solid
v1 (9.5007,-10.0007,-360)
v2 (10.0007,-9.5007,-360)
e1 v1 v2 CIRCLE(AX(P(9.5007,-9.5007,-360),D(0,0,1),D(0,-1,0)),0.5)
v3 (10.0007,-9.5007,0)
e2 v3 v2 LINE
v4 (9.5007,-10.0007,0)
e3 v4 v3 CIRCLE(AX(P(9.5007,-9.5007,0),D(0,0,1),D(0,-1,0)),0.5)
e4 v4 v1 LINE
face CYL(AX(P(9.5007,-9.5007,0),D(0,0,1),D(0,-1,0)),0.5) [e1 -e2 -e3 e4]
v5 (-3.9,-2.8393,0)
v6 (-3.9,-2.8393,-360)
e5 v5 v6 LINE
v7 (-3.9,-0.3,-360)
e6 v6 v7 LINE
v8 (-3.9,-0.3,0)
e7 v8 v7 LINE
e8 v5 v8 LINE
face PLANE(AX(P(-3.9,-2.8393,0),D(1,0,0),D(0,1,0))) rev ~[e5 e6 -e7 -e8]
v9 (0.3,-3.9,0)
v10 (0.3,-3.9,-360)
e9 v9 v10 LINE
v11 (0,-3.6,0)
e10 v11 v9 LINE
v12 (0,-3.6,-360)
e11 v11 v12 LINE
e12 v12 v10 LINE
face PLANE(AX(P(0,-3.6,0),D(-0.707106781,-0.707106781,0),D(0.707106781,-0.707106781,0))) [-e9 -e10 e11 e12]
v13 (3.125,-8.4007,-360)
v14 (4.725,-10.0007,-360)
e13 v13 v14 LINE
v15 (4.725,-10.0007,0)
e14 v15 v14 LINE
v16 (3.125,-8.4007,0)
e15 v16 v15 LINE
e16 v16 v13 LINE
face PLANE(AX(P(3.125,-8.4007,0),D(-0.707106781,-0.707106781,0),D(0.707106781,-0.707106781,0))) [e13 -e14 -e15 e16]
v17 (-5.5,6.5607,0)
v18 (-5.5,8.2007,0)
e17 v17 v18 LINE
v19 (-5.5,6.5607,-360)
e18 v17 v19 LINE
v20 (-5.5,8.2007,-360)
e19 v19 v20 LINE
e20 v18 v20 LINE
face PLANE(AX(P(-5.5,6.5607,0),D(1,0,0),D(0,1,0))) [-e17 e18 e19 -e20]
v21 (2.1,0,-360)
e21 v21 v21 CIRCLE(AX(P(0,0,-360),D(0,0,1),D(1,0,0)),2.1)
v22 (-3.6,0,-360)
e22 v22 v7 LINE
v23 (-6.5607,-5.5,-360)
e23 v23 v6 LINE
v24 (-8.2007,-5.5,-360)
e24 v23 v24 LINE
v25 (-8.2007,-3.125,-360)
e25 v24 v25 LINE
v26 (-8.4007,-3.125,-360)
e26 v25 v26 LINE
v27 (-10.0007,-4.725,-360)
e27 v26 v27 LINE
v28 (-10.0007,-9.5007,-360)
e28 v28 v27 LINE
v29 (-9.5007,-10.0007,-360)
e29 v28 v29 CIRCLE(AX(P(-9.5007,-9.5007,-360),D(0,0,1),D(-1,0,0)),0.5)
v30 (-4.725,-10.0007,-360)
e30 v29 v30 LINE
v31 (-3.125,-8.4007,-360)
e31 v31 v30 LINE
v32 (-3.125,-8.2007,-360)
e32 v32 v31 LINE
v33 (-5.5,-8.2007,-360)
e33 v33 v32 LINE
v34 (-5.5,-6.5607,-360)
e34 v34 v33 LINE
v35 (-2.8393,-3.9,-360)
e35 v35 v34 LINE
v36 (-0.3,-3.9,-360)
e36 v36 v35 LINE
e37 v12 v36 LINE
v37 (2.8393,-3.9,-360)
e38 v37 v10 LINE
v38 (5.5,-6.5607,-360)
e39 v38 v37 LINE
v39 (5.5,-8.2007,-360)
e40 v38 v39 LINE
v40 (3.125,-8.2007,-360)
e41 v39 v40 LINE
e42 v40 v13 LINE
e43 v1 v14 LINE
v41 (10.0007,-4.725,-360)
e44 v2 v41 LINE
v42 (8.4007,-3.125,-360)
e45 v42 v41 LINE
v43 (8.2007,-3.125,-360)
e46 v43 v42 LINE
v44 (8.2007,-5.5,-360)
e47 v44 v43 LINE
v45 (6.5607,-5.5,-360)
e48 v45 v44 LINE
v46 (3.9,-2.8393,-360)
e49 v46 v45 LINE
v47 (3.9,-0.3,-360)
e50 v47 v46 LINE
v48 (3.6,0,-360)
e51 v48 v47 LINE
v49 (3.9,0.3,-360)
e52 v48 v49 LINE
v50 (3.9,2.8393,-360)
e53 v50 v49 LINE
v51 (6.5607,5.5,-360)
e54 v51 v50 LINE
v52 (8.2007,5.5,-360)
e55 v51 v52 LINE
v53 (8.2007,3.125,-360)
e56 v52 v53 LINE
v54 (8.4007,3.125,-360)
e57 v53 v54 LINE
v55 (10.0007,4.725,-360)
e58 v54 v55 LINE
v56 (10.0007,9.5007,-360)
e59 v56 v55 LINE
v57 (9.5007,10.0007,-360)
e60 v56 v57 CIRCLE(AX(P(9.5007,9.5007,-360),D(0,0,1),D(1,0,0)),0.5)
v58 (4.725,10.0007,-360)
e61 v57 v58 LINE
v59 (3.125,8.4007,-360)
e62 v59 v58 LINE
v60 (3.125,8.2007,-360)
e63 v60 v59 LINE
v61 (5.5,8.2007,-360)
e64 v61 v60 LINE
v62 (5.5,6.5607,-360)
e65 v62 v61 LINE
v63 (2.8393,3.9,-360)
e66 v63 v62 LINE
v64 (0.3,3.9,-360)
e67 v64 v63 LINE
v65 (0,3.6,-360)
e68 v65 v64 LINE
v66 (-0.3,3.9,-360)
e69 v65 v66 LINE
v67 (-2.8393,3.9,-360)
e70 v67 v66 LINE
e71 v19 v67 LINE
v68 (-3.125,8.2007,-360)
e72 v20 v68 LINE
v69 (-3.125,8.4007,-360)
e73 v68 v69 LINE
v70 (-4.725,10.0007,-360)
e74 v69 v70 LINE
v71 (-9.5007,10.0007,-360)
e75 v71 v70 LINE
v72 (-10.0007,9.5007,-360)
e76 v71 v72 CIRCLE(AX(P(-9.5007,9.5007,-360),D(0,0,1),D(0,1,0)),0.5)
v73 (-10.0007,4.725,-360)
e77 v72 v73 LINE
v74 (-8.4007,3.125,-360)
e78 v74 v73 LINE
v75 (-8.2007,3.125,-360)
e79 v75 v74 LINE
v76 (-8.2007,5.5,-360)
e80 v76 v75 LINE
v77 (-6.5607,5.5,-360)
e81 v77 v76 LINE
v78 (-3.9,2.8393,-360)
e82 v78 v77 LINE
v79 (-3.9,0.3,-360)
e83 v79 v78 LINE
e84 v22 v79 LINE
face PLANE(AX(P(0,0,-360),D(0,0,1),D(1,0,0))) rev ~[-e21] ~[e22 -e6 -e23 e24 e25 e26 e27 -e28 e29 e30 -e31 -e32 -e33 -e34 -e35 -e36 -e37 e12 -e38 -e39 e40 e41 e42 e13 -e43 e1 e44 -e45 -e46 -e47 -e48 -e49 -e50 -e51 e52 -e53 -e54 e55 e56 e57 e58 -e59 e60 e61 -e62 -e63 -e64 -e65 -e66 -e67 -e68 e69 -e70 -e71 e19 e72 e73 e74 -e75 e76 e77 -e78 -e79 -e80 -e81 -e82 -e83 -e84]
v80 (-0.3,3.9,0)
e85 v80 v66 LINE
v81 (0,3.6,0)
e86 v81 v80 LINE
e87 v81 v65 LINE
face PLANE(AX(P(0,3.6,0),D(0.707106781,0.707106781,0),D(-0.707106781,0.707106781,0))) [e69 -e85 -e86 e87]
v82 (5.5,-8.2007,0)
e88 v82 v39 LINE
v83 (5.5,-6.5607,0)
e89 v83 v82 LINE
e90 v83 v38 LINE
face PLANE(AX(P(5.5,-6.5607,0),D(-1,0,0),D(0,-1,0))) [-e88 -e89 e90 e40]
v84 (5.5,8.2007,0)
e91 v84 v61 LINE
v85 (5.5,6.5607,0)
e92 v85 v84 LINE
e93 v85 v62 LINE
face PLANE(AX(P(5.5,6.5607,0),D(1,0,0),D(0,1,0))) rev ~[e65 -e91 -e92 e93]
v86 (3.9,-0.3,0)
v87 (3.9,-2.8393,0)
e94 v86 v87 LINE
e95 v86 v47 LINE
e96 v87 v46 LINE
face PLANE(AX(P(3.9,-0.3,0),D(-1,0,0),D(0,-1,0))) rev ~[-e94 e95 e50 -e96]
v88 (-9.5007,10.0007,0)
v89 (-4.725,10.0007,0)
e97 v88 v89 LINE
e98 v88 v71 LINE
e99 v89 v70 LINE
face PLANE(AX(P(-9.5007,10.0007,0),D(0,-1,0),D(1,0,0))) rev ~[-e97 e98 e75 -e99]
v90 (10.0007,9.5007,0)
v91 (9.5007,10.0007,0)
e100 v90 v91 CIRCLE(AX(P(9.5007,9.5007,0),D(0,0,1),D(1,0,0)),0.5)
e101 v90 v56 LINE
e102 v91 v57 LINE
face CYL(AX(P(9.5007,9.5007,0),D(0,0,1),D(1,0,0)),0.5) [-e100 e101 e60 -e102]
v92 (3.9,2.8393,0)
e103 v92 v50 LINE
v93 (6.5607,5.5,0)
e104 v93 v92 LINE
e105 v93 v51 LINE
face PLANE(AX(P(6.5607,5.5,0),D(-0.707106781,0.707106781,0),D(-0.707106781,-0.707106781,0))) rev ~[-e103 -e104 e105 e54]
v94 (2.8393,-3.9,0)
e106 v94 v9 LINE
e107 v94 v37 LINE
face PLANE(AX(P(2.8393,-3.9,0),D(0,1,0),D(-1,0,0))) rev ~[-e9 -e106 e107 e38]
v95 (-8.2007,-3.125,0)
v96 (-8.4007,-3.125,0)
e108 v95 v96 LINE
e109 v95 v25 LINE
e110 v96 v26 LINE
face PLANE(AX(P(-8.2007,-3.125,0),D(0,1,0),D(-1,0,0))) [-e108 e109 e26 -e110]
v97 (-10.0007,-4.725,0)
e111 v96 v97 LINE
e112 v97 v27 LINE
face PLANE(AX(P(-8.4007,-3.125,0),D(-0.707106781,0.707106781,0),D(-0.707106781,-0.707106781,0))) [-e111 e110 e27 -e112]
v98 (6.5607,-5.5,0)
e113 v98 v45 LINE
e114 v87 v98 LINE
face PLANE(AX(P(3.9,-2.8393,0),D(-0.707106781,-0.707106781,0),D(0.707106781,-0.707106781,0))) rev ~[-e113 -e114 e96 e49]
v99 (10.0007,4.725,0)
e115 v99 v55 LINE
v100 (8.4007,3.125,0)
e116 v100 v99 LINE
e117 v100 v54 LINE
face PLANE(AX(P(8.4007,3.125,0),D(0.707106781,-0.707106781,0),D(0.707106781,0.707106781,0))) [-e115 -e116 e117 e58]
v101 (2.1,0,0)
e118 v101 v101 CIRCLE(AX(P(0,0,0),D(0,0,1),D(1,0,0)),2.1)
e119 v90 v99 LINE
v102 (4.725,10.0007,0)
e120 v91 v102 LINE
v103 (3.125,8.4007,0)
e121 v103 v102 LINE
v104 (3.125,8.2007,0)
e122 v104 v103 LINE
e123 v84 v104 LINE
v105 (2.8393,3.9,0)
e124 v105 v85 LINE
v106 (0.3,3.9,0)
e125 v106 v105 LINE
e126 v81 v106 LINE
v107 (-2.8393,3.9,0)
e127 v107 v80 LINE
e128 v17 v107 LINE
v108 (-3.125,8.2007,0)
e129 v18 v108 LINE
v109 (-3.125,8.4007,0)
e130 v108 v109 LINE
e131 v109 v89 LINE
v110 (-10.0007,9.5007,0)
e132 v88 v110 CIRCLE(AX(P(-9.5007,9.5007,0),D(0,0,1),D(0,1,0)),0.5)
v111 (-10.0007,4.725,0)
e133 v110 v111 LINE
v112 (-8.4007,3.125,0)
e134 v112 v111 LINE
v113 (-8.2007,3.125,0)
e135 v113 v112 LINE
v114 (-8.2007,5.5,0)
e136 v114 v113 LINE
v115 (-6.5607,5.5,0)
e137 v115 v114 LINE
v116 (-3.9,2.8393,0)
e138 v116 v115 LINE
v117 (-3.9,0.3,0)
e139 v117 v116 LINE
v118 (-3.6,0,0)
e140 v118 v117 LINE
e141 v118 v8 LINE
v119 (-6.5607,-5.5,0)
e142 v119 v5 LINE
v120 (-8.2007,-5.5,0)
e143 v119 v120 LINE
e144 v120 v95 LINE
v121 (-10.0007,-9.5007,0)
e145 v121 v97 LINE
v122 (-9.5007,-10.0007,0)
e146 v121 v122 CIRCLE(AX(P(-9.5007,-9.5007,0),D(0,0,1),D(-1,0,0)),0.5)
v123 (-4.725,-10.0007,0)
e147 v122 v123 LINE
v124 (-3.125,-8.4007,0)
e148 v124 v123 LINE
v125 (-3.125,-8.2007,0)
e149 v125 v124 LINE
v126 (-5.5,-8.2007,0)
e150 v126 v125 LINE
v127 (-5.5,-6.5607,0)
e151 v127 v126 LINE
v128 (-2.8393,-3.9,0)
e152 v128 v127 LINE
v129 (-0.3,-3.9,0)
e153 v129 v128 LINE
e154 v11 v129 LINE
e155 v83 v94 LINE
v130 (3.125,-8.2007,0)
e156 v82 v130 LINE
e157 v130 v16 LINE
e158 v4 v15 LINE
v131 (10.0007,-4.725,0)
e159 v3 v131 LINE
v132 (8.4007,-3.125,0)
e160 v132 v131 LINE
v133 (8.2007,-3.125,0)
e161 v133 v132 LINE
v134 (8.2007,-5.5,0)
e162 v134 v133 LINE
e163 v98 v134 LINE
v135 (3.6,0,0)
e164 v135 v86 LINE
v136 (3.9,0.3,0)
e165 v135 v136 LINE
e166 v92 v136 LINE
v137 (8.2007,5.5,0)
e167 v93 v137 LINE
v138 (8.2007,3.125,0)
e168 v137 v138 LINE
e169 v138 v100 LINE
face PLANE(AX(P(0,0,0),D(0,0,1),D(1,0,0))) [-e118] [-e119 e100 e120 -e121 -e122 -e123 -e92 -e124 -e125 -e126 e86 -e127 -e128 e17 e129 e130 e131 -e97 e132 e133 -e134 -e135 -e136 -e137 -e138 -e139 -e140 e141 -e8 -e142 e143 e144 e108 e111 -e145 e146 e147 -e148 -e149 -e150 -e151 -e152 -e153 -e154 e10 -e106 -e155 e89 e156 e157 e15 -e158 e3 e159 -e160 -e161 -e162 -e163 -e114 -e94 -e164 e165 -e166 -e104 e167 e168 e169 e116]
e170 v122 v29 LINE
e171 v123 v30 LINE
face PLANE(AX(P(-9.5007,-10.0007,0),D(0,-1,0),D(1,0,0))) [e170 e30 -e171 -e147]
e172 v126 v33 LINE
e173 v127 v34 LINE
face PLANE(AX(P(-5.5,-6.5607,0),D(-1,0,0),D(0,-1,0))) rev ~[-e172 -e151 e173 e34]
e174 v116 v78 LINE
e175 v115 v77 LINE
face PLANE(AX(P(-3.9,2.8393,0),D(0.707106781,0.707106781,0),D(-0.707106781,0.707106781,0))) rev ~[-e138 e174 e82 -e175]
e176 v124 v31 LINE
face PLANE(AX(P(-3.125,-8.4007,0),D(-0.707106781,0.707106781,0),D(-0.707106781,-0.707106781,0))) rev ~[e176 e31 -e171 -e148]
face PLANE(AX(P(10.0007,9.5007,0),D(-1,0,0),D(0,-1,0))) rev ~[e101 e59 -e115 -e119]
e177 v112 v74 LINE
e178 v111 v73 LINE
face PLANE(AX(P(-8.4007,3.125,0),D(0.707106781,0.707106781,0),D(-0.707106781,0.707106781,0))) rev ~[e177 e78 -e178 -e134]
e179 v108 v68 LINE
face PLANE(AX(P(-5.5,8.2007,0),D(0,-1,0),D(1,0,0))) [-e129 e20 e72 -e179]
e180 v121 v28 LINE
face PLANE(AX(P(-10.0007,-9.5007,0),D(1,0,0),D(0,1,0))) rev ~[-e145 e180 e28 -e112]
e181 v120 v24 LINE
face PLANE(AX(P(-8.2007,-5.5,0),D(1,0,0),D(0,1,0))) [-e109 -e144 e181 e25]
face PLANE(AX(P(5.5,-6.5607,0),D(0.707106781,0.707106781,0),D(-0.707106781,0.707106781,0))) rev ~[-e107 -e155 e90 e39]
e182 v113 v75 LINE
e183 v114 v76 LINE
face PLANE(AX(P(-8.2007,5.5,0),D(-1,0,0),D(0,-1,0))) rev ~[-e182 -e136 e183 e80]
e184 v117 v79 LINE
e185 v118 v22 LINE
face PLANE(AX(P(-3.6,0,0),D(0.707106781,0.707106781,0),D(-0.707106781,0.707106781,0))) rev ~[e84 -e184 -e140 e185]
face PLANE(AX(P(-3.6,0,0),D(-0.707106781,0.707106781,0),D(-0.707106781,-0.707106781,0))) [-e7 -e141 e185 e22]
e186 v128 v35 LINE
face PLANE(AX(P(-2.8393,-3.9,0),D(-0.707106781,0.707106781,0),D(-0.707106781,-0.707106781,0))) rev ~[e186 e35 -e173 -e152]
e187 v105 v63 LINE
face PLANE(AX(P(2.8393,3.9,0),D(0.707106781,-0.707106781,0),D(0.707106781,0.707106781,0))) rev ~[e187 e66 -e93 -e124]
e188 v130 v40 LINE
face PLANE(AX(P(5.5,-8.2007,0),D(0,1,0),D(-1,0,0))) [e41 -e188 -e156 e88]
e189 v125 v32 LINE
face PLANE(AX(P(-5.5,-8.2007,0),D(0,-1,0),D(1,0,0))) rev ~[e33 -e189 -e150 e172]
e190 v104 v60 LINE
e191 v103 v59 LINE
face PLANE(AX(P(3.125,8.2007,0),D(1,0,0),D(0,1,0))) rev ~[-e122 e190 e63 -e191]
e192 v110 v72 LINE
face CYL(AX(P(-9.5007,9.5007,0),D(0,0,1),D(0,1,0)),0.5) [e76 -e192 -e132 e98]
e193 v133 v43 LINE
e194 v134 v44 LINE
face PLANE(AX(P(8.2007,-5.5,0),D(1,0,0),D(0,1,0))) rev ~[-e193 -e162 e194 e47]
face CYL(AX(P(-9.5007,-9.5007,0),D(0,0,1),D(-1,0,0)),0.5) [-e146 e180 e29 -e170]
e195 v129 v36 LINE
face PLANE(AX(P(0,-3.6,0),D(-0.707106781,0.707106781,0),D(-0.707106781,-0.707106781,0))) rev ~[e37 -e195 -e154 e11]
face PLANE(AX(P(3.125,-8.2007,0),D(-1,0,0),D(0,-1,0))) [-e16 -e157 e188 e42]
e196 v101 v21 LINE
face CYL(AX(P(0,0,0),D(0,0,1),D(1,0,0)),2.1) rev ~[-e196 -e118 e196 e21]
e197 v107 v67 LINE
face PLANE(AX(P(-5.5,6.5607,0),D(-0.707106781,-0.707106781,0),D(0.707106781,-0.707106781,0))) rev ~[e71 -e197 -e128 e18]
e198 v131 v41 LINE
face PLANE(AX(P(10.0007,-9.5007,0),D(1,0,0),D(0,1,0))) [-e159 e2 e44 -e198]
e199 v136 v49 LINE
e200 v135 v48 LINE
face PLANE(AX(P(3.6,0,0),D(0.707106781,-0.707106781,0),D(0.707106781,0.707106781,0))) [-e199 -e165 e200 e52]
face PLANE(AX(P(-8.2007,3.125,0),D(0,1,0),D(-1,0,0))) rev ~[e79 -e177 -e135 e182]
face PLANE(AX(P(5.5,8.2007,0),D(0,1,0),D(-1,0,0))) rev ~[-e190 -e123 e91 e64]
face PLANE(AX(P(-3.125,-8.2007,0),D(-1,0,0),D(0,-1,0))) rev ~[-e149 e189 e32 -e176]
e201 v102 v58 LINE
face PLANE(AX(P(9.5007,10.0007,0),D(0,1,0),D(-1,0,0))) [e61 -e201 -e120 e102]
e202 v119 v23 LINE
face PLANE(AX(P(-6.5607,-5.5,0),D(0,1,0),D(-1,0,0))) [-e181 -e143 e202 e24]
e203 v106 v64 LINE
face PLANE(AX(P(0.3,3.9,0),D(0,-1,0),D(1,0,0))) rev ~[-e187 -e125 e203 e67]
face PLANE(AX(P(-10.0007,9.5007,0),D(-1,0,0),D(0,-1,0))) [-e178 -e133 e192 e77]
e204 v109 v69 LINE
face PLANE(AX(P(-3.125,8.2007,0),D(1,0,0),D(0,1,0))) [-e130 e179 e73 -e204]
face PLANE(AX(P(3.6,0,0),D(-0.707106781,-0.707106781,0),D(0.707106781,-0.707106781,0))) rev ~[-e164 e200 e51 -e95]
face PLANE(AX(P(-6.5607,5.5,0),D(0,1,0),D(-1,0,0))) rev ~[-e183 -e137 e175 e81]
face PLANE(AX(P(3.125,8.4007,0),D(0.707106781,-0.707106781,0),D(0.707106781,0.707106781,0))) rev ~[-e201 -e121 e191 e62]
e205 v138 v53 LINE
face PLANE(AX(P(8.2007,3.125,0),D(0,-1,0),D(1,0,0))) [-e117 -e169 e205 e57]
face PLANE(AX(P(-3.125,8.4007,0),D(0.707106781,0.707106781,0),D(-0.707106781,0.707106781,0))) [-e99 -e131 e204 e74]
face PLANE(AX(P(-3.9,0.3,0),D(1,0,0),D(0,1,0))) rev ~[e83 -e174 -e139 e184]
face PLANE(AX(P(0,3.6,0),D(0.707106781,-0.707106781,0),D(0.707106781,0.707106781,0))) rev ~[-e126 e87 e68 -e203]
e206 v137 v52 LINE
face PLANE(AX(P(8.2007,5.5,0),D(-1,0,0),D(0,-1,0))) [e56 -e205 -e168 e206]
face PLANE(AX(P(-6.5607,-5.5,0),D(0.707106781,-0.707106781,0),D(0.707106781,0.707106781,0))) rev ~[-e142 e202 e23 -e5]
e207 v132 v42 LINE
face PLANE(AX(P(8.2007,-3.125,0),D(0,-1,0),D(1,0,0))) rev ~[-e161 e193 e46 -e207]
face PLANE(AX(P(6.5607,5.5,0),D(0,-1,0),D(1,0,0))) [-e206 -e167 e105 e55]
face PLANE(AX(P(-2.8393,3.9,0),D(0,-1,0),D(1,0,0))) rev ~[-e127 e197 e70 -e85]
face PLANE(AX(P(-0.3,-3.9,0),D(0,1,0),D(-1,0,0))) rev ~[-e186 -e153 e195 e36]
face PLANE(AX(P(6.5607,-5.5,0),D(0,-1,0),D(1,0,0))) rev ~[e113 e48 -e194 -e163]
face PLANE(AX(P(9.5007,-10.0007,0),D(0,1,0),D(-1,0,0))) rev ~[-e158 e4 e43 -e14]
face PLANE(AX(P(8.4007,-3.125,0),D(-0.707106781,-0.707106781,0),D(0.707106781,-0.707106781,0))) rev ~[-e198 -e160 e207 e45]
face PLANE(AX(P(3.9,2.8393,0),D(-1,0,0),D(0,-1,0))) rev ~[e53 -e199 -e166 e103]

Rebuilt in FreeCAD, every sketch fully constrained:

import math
import FreeCAD as App
import Part
import Sketcher

doc = App.newDocument("Part")
body = doc.addObject("PartDesign::Body", "Body")

sketch1 = body.newObject("Sketcher::SketchObject", "Sketch")
sketch1.AttachmentSupport = (doc.getObject("XY_Plane"), [""])
sketch1.MapMode = "FlatFace"
sketch1.addGeometry(Part.LineSegment(App.Vector(3.9, -2.84, 0), App.Vector(3.9, -0.3, 0)), False)
sketch1.addGeometry(Part.LineSegment(App.Vector(3.9, -0.3, 0), App.Vector(3.6, 0, 0)), False)
sketch1.addGeometry(Part.LineSegment(App.Vector(3.6, 0, 0), App.Vector(3.9, 0.3, 0)), False)
sketch1.addGeometry(Part.LineSegment(App.Vector(3.9, 0.3, 0), App.Vector(3.9, 2.84, 0)), False)
sketch1.addGeometry(Part.LineSegment(App.Vector(3.9, 2.84, 0), App.Vector(6.56, 5.5, 0)), False)
sketch1.addGeometry(Part.LineSegment(App.Vector(6.56, 5.5, 0), App.Vector(8.2, 5.5, 0)), False)
sketch1.addGeometry(Part.LineSegment(App.Vector(8.2, 5.5, 0), App.Vector(8.2, 3.12, 0)), False)
sketch1.addGeometry(Part.LineSegment(App.Vector(8.2, 3.12, 0), App.Vector(8.4, 3.12, 0)), False)
sketch1.addGeometry(Part.LineSegment(App.Vector(8.4, 3.12, 0), App.Vector(10, 4.72, 0)), False)
sketch1.addGeometry(Part.LineSegment(App.Vector(10, 4.72, 0), App.Vector(10, 9.5, 0)), False)
sketch1.addGeometry(Part.ArcOfCircle(Part.Circle(App.Vector(9.5, 9.5, 0), App.Vector(0, 0, 1), 0.5), math.radians(0), math.radians(90)), False)
sketch1.addGeometry(Part.LineSegment(App.Vector(9.5, 10, 0), App.Vector(4.72, 10, 0)), False)
sketch1.addGeometry(Part.LineSegment(App.Vector(4.72, 10, 0), App.Vector(3.12, 8.4, 0)), False)
sketch1.addGeometry(Part.LineSegment(App.Vector(3.12, 8.4, 0), App.Vector(3.12, 8.2, 0)), False)
sketch1.addGeometry(Part.LineSegment(App.Vector(3.12, 8.2, 0), App.Vector(5.5, 8.2, 0)), False)
sketch1.addGeometry(Part.LineSegment(App.Vector(5.5, 8.2, 0), App.Vector(5.5, 6.56, 0)), False)
sketch1.addGeometry(Part.LineSegment(App.Vector(5.5, 6.56, 0), App.Vector(2.84, 3.9, 0)), False)
sketch1.addGeometry(Part.LineSegment(App.Vector(2.84, 3.9, 0), App.Vector(0.3, 3.9, 0)), False)
sketch1.addGeometry(Part.LineSegment(App.Vector(0.3, 3.9, 0), App.Vector(0, 3.6, 0)), False)
sketch1.addGeometry(Part.LineSegment(App.Vector(0, 3.6, 0), App.Vector(-0.3, 3.9, 0)), False)
sketch1.addGeometry(Part.LineSegment(App.Vector(-0.3, 3.9, 0), App.Vector(-2.84, 3.9, 0)), False)
sketch1.addGeometry(Part.LineSegment(App.Vector(-2.84, 3.9, 0), App.Vector(-5.5, 6.56, 0)), False)
sketch1.addGeometry(Part.LineSegment(App.Vector(-5.5, 6.56, 0), App.Vector(-5.5, 8.2, 0)), False)
sketch1.addGeometry(Part.LineSegment(App.Vector(-5.5, 8.2, 0), App.Vector(-3.12, 8.2, 0)), False)
sketch1.addGeometry(Part.LineSegment(App.Vector(-3.12, 8.2, 0), App.Vector(-3.12, 8.4, 0)), False)
sketch1.addGeometry(Part.LineSegment(App.Vector(-3.12, 8.4, 0), App.Vector(-4.72, 10, 0)), False)
sketch1.addGeometry(Part.LineSegment(App.Vector(-4.72, 10, 0), App.Vector(-9.5, 10, 0)), False)
sketch1.addGeometry(Part.ArcOfCircle(Part.Circle(App.Vector(-9.5, 9.5, 0), App.Vector(0, 0, 1), 0.5), math.radians(90), math.radians(180)), False)
sketch1.addGeometry(Part.LineSegment(App.Vector(-10, 9.5, 0), App.Vector(-10, 4.72, 0)), False)
sketch1.addGeometry(Part.LineSegment(App.Vector(-10, 4.72, 0), App.Vector(-8.4, 3.12, 0)), False)
sketch1.addGeometry(Part.LineSegment(App.Vector(-8.4, 3.12, 0), App.Vector(-8.2, 3.12, 0)), False)
sketch1.addGeometry(Part.LineSegment(App.Vector(-8.2, 3.12, 0), App.Vector(-8.2, 5.5, 0)), False)
sketch1.addGeometry(Part.LineSegment(App.Vector(-8.2, 5.5, 0), App.Vector(-6.56, 5.5, 0)), False)
sketch1.addGeometry(Part.LineSegment(App.Vector(-6.56, 5.5, 0), App.Vector(-3.9, 2.84, 0)), False)
sketch1.addGeometry(Part.LineSegment(App.Vector(-3.9, 2.84, 0), App.Vector(-3.9, 0.3, 0)), False)
sketch1.addGeometry(Part.LineSegment(App.Vector(-3.9, 0.3, 0), App.Vector(-3.6, 0, 0)), False)
sketch1.addGeometry(Part.LineSegment(App.Vector(-3.6, 0, 0), App.Vector(-3.9, -0.3, 0)), False)
sketch1.addGeometry(Part.LineSegment(App.Vector(-3.9, -0.3, 0), App.Vector(-3.9, -2.84, 0)), False)
sketch1.addGeometry(Part.LineSegment(App.Vector(-3.9, -2.84, 0), App.Vector(-6.56, -5.5, 0)), False)
sketch1.addGeometry(Part.LineSegment(App.Vector(-6.56, -5.5, 0), App.Vector(-8.2, -5.5, 0)), False)
sketch1.addGeometry(Part.LineSegment(App.Vector(-8.2, -5.5, 0), App.Vector(-8.2, -3.12, 0)), False)
sketch1.addGeometry(Part.LineSegment(App.Vector(-8.2, -3.12, 0), App.Vector(-8.4, -3.12, 0)), False)
sketch1.addGeometry(Part.LineSegment(App.Vector(-8.4, -3.12, 0), App.Vector(-10, -4.72, 0)), False)
sketch1.addGeometry(Part.LineSegment(App.Vector(-10, -4.72, 0), App.Vector(-10, -9.5, 0)), False)
sketch1.addGeometry(Part.ArcOfCircle(Part.Circle(App.Vector(-9.5, -9.5, 0), App.Vector(0, 0, 1), 0.5), math.radians(180), math.radians(270)), False)
sketch1.addGeometry(Part.LineSegment(App.Vector(-9.5, -10, 0), App.Vector(-4.72, -10, 0)), False)
sketch1.addGeometry(Part.LineSegment(App.Vector(-4.72, -10, 0), App.Vector(-3.12, -8.4, 0)), False)
sketch1.addGeometry(Part.LineSegment(App.Vector(-3.12, -8.4, 0), App.Vector(-3.12, -8.2, 0)), False)
sketch1.addGeometry(Part.LineSegment(App.Vector(-3.12, -8.2, 0), App.Vector(-5.5, -8.2, 0)), False)
sketch1.addGeometry(Part.LineSegment(App.Vector(-5.5, -8.2, 0), App.Vector(-5.5, -6.56, 0)), False)
sketch1.addGeometry(Part.LineSegment(App.Vector(-5.5, -6.56, 0), App.Vector(-2.84, -3.9, 0)), False)
sketch1.addGeometry(Part.LineSegment(App.Vector(-2.84, -3.9, 0), App.Vector(-0.3, -3.9, 0)), False)
sketch1.addGeometry(Part.LineSegment(App.Vector(-0.3, -3.9, 0), App.Vector(0, -3.6, 0)), False)
sketch1.addGeometry(Part.LineSegment(App.Vector(0, -3.6, 0), App.Vector(0.3, -3.9, 0)), False)
sketch1.addGeometry(Part.LineSegment(App.Vector(0.3, -3.9, 0), App.Vector(2.84, -3.9, 0)), False)
sketch1.addGeometry(Part.LineSegment(App.Vector(2.84, -3.9, 0), App.Vector(5.5, -6.56, 0)), False)
sketch1.addGeometry(Part.LineSegment(App.Vector(5.5, -6.56, 0), App.Vector(5.5, -8.2, 0)), False)
sketch1.addGeometry(Part.LineSegment(App.Vector(5.5, -8.2, 0), App.Vector(3.12, -8.2, 0)), False)
sketch1.addGeometry(Part.LineSegment(App.Vector(3.12, -8.2, 0), App.Vector(3.12, -8.4, 0)), False)
sketch1.addGeometry(Part.LineSegment(App.Vector(3.12, -8.4, 0), App.Vector(4.72, -10, 0)), False)
sketch1.addGeometry(Part.LineSegment(App.Vector(4.72, -10, 0), App.Vector(9.5, -10, 0)), False)
sketch1.addGeometry(Part.ArcOfCircle(Part.Circle(App.Vector(9.5, -9.5, 0), App.Vector(0, 0, 1), 0.5), math.radians(-90), math.radians(0)), False)
sketch1.addGeometry(Part.LineSegment(App.Vector(10, -9.5, 0), App.Vector(10, -4.72, 0)), False)
sketch1.addGeometry(Part.LineSegment(App.Vector(10, -4.72, 0), App.Vector(8.4, -3.12, 0)), False)
sketch1.addGeometry(Part.LineSegment(App.Vector(8.4, -3.12, 0), App.Vector(8.2, -3.12, 0)), False)
sketch1.addGeometry(Part.LineSegment(App.Vector(8.2, -3.12, 0), App.Vector(8.2, -5.5, 0)), False)
sketch1.addGeometry(Part.LineSegment(App.Vector(8.2, -5.5, 0), App.Vector(6.56, -5.5, 0)), False)
sketch1.addGeometry(Part.LineSegment(App.Vector(6.56, -5.5, 0), App.Vector(3.9, -2.84, 0)), False)
sketch1.addGeometry(Part.Circle(App.Vector(0, 0, 0), App.Vector(0, 0, 1), 2.1), False)
sketch1.addConstraint(Sketcher.Constraint("Coincident", 0, 2, 1, 1))
sketch1.addConstraint(Sketcher.Constraint("Coincident", 1, 2, 2, 1))
sketch1.addConstraint(Sketcher.Constraint("Coincident", 2, 2, 3, 1))
sketch1.addConstraint(Sketcher.Constraint("Coincident", 3, 2, 4, 1))
sketch1.addConstraint(Sketcher.Constraint("Coincident", 4, 2, 5, 1))
sketch1.addConstraint(Sketcher.Constraint("Coincident", 5, 2, 6, 1))
sketch1.addConstraint(Sketcher.Constraint("Coincident", 6, 2, 7, 1))
sketch1.addConstraint(Sketcher.Constraint("Coincident", 7, 2, 8, 1))
sketch1.addConstraint(Sketcher.Constraint("Coincident", 8, 2, 9, 1))
sketch1.addConstraint(Sketcher.Constraint("Tangent", 9, 2, 10, 1))
sketch1.addConstraint(Sketcher.Constraint("Tangent", 10, 2, 11, 1))
sketch1.addConstraint(Sketcher.Constraint("Coincident", 11, 2, 12, 1))
sketch1.addConstraint(Sketcher.Constraint("Coincident", 12, 2, 13, 1))
sketch1.addConstraint(Sketcher.Constraint("Coincident", 13, 2, 14, 1))
sketch1.addConstraint(Sketcher.Constraint("Coincident", 14, 2, 15, 1))
sketch1.addConstraint(Sketcher.Constraint("Coincident", 15, 2, 16, 1))
sketch1.addConstraint(Sketcher.Constraint("Coincident", 16, 2, 17, 1))
sketch1.addConstraint(Sketcher.Constraint("Coincident", 17, 2, 18, 1))
sketch1.addConstraint(Sketcher.Constraint("Coincident", 18, 2, 19, 1))
sketch1.addConstraint(Sketcher.Constraint("Coincident", 19, 2, 20, 1))
sketch1.addConstraint(Sketcher.Constraint("Coincident", 20, 2, 21, 1))
sketch1.addConstraint(Sketcher.Constraint("Coincident", 21, 2, 22, 1))
sketch1.addConstraint(Sketcher.Constraint("Coincident", 22, 2, 23, 1))
sketch1.addConstraint(Sketcher.Constraint("Coincident", 23, 2, 24, 1))
sketch1.addConstraint(Sketcher.Constraint("Coincident", 24, 2, 25, 1))
sketch1.addConstraint(Sketcher.Constraint("Coincident", 25, 2, 26, 1))
sketch1.addConstraint(Sketcher.Constraint("Tangent", 26, 2, 27, 1))
sketch1.addConstraint(Sketcher.Constraint("Tangent", 27, 2, 28, 1))
sketch1.addConstraint(Sketcher.Constraint("Coincident", 28, 2, 29, 1))
sketch1.addConstraint(Sketcher.Constraint("Coincident", 29, 2, 30, 1))
sketch1.addConstraint(Sketcher.Constraint("Coincident", 30, 2, 31, 1))
sketch1.addConstraint(Sketcher.Constraint("Coincident", 31, 2, 32, 1))
sketch1.addConstraint(Sketcher.Constraint("Coincident", 32, 2, 33, 1))
sketch1.addConstraint(Sketcher.Constraint("Coincident", 33, 2, 34, 1))
sketch1.addConstraint(Sketcher.Constraint("Coincident", 34, 2, 35, 1))
sketch1.addConstraint(Sketcher.Constraint("Coincident", 35, 2, 36, 1))
sketch1.addConstraint(Sketcher.Constraint("Coincident", 36, 2, 37, 1))
sketch1.addConstraint(Sketcher.Constraint("Coincident", 37, 2, 38, 1))
sketch1.addConstraint(Sketcher.Constraint("Coincident", 38, 2, 39, 1))
sketch1.addConstraint(Sketcher.Constraint("Coincident", 39, 2, 40, 1))
sketch1.addConstraint(Sketcher.Constraint("Coincident", 40, 2, 41, 1))
sketch1.addConstraint(Sketcher.Constraint("Coincident", 41, 2, 42, 1))
sketch1.addConstraint(Sketcher.Constraint("Coincident", 42, 2, 43, 1))
sketch1.addConstraint(Sketcher.Constraint("Tangent", 43, 2, 44, 1))
sketch1.addConstraint(Sketcher.Constraint("Tangent", 44, 2, 45, 1))
sketch1.addConstraint(Sketcher.Constraint("Coincident", 45, 2, 46, 1))
sketch1.addConstraint(Sketcher.Constraint("Coincident", 46, 2, 47, 1))
sketch1.addConstraint(Sketcher.Constraint("Coincident", 47, 2, 48, 1))
sketch1.addConstraint(Sketcher.Constraint("Coincident", 48, 2, 49, 1))
sketch1.addConstraint(Sketcher.Constraint("Coincident", 49, 2, 50, 1))
sketch1.addConstraint(Sketcher.Constraint("Coincident", 50, 2, 51, 1))
sketch1.addConstraint(Sketcher.Constraint("Coincident", 51, 2, 52, 1))
sketch1.addConstraint(Sketcher.Constraint("Coincident", 52, 2, 53, 1))
sketch1.addConstraint(Sketcher.Constraint("Coincident", 53, 2, 54, 1))
sketch1.addConstraint(Sketcher.Constraint("Coincident", 54, 2, 55, 1))
sketch1.addConstraint(Sketcher.Constraint("Coincident", 55, 2, 56, 1))
sketch1.addConstraint(Sketcher.Constraint("Coincident", 56, 2, 57, 1))
sketch1.addConstraint(Sketcher.Constraint("Coincident", 57, 2, 58, 1))
sketch1.addConstraint(Sketcher.Constraint("Coincident", 58, 2, 59, 1))
sketch1.addConstraint(Sketcher.Constraint("Coincident", 59, 2, 60, 1))
sketch1.addConstraint(Sketcher.Constraint("Tangent", 60, 2, 61, 1))
sketch1.addConstraint(Sketcher.Constraint("Tangent", 61, 2, 62, 1))
sketch1.addConstraint(Sketcher.Constraint("Coincident", 62, 2, 63, 1))
sketch1.addConstraint(Sketcher.Constraint("Coincident", 63, 2, 64, 1))
sketch1.addConstraint(Sketcher.Constraint("Coincident", 64, 2, 65, 1))
sketch1.addConstraint(Sketcher.Constraint("Coincident", 65, 2, 66, 1))
sketch1.addConstraint(Sketcher.Constraint("Coincident", 66, 2, 67, 1))
sketch1.addConstraint(Sketcher.Constraint("Coincident", 67, 2, 0, 1))
sketch1.addConstraint(Sketcher.Constraint("Vertical", 0))
sketch1.addConstraint(Sketcher.Constraint("Vertical", 3))
sketch1.addConstraint(Sketcher.Constraint("Horizontal", 5))
sketch1.addConstraint(Sketcher.Constraint("Vertical", 6))
sketch1.addConstraint(Sketcher.Constraint("Horizontal", 7))
sketch1.addConstraint(Sketcher.Constraint("Vertical", 9))
sketch1.addConstraint(Sketcher.Constraint("Horizontal", 11))
sketch1.addConstraint(Sketcher.Constraint("Vertical", 13))
sketch1.addConstraint(Sketcher.Constraint("Horizontal", 14))
sketch1.addConstraint(Sketcher.Constraint("Vertical", 15))
sketch1.addConstraint(Sketcher.Constraint("Horizontal", 17))
sketch1.addConstraint(Sketcher.Constraint("Horizontal", 20))
sketch1.addConstraint(Sketcher.Constraint("Vertical", 22))
sketch1.addConstraint(Sketcher.Constraint("Horizontal", 23))
sketch1.addConstraint(Sketcher.Constraint("Vertical", 24))
sketch1.addConstraint(Sketcher.Constraint("Horizontal", 26))
sketch1.addConstraint(Sketcher.Constraint("Vertical", 28))
sketch1.addConstraint(Sketcher.Constraint("Horizontal", 30))
sketch1.addConstraint(Sketcher.Constraint("Vertical", 31))
sketch1.addConstraint(Sketcher.Constraint("Horizontal", 32))
sketch1.addConstraint(Sketcher.Constraint("Vertical", 34))
sketch1.addConstraint(Sketcher.Constraint("Vertical", 37))
sketch1.addConstraint(Sketcher.Constraint("Horizontal", 39))
sketch1.addConstraint(Sketcher.Constraint("Vertical", 40))
sketch1.addConstraint(Sketcher.Constraint("Horizontal", 41))
sketch1.addConstraint(Sketcher.Constraint("Vertical", 43))
sketch1.addConstraint(Sketcher.Constraint("Horizontal", 45))
sketch1.addConstraint(Sketcher.Constraint("Vertical", 47))
sketch1.addConstraint(Sketcher.Constraint("Horizontal", 48))
sketch1.addConstraint(Sketcher.Constraint("Vertical", 49))
sketch1.addConstraint(Sketcher.Constraint("Horizontal", 51))
sketch1.addConstraint(Sketcher.Constraint("Horizontal", 54))
sketch1.addConstraint(Sketcher.Constraint("Vertical", 56))
sketch1.addConstraint(Sketcher.Constraint("Horizontal", 57))
sketch1.addConstraint(Sketcher.Constraint("Vertical", 58))
sketch1.addConstraint(Sketcher.Constraint("Horizontal", 60))
sketch1.addConstraint(Sketcher.Constraint("Vertical", 62))
sketch1.addConstraint(Sketcher.Constraint("Horizontal", 64))
sketch1.addConstraint(Sketcher.Constraint("Vertical", 65))
sketch1.addConstraint(Sketcher.Constraint("Horizontal", 66))
sketch1.addConstraint(Sketcher.Constraint("Coincident", 68, 3, -1, 1))
sketch1.addConstraint(Sketcher.Constraint("Equal", 10, 27))
sketch1.addConstraint(Sketcher.Constraint("Equal", 27, 44))
sketch1.addConstraint(Sketcher.Constraint("Equal", 44, 61))
sketch1.addConstraint(Sketcher.Constraint("Symmetric", 10, 3, 44, 3, -1, 1))
sketch1.addConstraint(Sketcher.Constraint("Symmetric", 27, 3, 61, 3, -1, 1))
sketch1.addConstraint(Sketcher.Constraint("Symmetric", 0, 2, 34, 2, -1, 1))
sketch1.addConstraint(Sketcher.Constraint("Symmetric", 1, 2, 35, 2, -1, 1))
sketch1.addConstraint(Sketcher.Constraint("Symmetric", 2, 2, 36, 2, -1, 1))
sketch1.addConstraint(Sketcher.Constraint("Symmetric", 4, 2, 38, 2, -1, 1))
sketch1.addConstraint(Sketcher.Constraint("Symmetric", 6, 2, 40, 2, -1, 1))
sketch1.addConstraint(Sketcher.Constraint("Symmetric", 12, 2, 46, 2, -1, 1))
sketch1.addConstraint(Sketcher.Constraint("Symmetric", 14, 2, 48, 2, -1, 1))
sketch1.addConstraint(Sketcher.Constraint("Symmetric", 16, 2, 50, 2, -1, 1))
sketch1.addConstraint(Sketcher.Constraint("Symmetric", 18, 2, 52, 2, -1, 1))
sketch1.addConstraint(Sketcher.Constraint("Symmetric", 19, 2, 53, 2, -1, 1))
sketch1.addConstraint(Sketcher.Constraint("Symmetric", 21, 2, 55, 2, -1, 1))
sketch1.addConstraint(Sketcher.Constraint("Symmetric", 23, 2, 57, 2, -1, 1))
sketch1.addConstraint(Sketcher.Constraint("Symmetric", 29, 2, 63, 2, -1, 1))
sketch1.addConstraint(Sketcher.Constraint("Symmetric", 31, 2, 65, 2, -1, 1))
sketch1.addConstraint(Sketcher.Constraint("Symmetric", 10, 3, 27, 3, -2))
sketch1.addConstraint(Sketcher.Constraint("Symmetric", 17, 2, 19, 2, -2))
sketch1.addConstraint(Sketcher.Constraint("Symmetric", 15, 2, 21, 2, -2))
sketch1.addConstraint(Sketcher.Constraint("Symmetric", 13, 2, 23, 2, -2))
sketch1.addConstraint(Sketcher.Constraint("Symmetric", 7, 2, 29, 2, -2))
sketch1.addConstraint(Sketcher.Constraint("Symmetric", 5, 2, 31, 2, -2))
sketch1.addConstraint(Sketcher.Constraint("Symmetric", 3, 2, 33, 2, -2))
sketch1.addConstraint(Sketcher.Constraint("PointOnObject", 1, 2, -1))
sketch1.addConstraint(Sketcher.Constraint("PointOnObject", 18, 2, -2))
sketch1.addConstraint(Sketcher.Constraint("Perpendicular", 1, 2))
sketch1.addConstraint(Sketcher.Constraint("Parallel", 2, 4))
sketch1.addConstraint(Sketcher.Constraint("Parallel", 4, 8))
sketch1.addConstraint(Sketcher.Constraint("Parallel", 8, 12))
sketch1.addConstraint(Sketcher.Constraint("Parallel", 12, 16))
sketch1.addConstraint(Sketcher.Constraint("Parallel", 16, 18))
sketch1.addConstraint(Sketcher.Constraint("Perpendicular", 18, 19))
sketch1.addConstraint(Sketcher.Constraint("Parallel", 19, 21))
sketch1.addConstraint(Sketcher.Constraint("Parallel", 21, 25))
sketch1.addConstraint(Sketcher.Constraint("Parallel", 25, 29))
sketch1.addConstraint(Sketcher.Constraint("Parallel", 29, 33))
sketch1.addConstraint(Sketcher.Constraint("Parallel", 36, 38))
sketch1.addConstraint(Sketcher.Constraint("Parallel", 38, 42))
sketch1.addConstraint(Sketcher.Constraint("Parallel", 42, 46))
sketch1.addConstraint(Sketcher.Constraint("Parallel", 46, 50))
sketch1.addConstraint(Sketcher.Constraint("Parallel", 50, 52))
sketch1.addConstraint(Sketcher.Constraint("Parallel", 53, 55))
sketch1.addConstraint(Sketcher.Constraint("Parallel", 55, 59))
sketch1.addConstraint(Sketcher.Constraint("Parallel", 59, 63))
sketch1.addConstraint(Sketcher.Constraint("Parallel", 63, 67))
sketch1.addConstraint(Sketcher.Constraint("Horizontal", 12, 2, 24, 2))
sketch1.addConstraint(Sketcher.Constraint("Horizontal", 46, 2, 58, 2))
sketch1.addConstraint(Sketcher.Constraint("Horizontal", 42, 2, 62, 2))
sketch1.addConstraint(Sketcher.Constraint("Horizontal", 37, 2, 67, 2))
sketch1.addConstraint(Sketcher.Constraint("Equal", 54, 0))
sketch1.addConstraint(Sketcher.Constraint("Equal", 57, 6))
sketch1.addConstraint(Sketcher.Constraint("Equal", 60, 9))
sketch1.addConstraint(Sketcher.Constraint("Equal", 64, 13))
sketch1.addConstraint(Sketcher.Constraint("Equal", 66, 15))
sketch1.addConstraint(Sketcher.Constraint("Equal", 8, 12))
sketch1.addConstraint(Sketcher.Constraint("Equal", 4, 16))
sketch1.addConstraint(Sketcher.Constraint("Equal", 2, 18))
sketch1.addConstraint(Sketcher.Constraint("Diameter", 68, 4.2))
sketch1.addConstraint(Sketcher.Constraint("Radius", 10, 0.5))
sketch1.addConstraint(Sketcher.Constraint("DistanceX", 7, 1, 7, 2, 0.2))
sketch1.addConstraint(Sketcher.Constraint("DistanceX", 5, 1, 5, 2, 1.64))
sketch1.addConstraint(Sketcher.Constraint("DistanceX", -1, 1, 0, 2, 3.9))
sketch1.addConstraint(Sketcher.Constraint("DistanceY", 0, 2, -1, 1, 0.3))
sketch1.addConstraint(Sketcher.Constraint("DistanceY", -1, 1, 4, 2, 5.5))
sketch1.addConstraint(Sketcher.Constraint("DistanceY", -1, 1, 6, 2, 3.125))
sketch1.addConstraint(Sketcher.Constraint("DistanceX", 11, 2, 11, 1, 4.7757))
sketch1.addConstraint(Sketcher.Constraint("DistanceY", -1, 1, 8, 2, 4.725))
pad1 = body.newObject("PartDesign::Pad", "Pad")
pad1.Profile = sketch1
pad1.Length = 360
pad1.Reversed = True

doc.recompute()
